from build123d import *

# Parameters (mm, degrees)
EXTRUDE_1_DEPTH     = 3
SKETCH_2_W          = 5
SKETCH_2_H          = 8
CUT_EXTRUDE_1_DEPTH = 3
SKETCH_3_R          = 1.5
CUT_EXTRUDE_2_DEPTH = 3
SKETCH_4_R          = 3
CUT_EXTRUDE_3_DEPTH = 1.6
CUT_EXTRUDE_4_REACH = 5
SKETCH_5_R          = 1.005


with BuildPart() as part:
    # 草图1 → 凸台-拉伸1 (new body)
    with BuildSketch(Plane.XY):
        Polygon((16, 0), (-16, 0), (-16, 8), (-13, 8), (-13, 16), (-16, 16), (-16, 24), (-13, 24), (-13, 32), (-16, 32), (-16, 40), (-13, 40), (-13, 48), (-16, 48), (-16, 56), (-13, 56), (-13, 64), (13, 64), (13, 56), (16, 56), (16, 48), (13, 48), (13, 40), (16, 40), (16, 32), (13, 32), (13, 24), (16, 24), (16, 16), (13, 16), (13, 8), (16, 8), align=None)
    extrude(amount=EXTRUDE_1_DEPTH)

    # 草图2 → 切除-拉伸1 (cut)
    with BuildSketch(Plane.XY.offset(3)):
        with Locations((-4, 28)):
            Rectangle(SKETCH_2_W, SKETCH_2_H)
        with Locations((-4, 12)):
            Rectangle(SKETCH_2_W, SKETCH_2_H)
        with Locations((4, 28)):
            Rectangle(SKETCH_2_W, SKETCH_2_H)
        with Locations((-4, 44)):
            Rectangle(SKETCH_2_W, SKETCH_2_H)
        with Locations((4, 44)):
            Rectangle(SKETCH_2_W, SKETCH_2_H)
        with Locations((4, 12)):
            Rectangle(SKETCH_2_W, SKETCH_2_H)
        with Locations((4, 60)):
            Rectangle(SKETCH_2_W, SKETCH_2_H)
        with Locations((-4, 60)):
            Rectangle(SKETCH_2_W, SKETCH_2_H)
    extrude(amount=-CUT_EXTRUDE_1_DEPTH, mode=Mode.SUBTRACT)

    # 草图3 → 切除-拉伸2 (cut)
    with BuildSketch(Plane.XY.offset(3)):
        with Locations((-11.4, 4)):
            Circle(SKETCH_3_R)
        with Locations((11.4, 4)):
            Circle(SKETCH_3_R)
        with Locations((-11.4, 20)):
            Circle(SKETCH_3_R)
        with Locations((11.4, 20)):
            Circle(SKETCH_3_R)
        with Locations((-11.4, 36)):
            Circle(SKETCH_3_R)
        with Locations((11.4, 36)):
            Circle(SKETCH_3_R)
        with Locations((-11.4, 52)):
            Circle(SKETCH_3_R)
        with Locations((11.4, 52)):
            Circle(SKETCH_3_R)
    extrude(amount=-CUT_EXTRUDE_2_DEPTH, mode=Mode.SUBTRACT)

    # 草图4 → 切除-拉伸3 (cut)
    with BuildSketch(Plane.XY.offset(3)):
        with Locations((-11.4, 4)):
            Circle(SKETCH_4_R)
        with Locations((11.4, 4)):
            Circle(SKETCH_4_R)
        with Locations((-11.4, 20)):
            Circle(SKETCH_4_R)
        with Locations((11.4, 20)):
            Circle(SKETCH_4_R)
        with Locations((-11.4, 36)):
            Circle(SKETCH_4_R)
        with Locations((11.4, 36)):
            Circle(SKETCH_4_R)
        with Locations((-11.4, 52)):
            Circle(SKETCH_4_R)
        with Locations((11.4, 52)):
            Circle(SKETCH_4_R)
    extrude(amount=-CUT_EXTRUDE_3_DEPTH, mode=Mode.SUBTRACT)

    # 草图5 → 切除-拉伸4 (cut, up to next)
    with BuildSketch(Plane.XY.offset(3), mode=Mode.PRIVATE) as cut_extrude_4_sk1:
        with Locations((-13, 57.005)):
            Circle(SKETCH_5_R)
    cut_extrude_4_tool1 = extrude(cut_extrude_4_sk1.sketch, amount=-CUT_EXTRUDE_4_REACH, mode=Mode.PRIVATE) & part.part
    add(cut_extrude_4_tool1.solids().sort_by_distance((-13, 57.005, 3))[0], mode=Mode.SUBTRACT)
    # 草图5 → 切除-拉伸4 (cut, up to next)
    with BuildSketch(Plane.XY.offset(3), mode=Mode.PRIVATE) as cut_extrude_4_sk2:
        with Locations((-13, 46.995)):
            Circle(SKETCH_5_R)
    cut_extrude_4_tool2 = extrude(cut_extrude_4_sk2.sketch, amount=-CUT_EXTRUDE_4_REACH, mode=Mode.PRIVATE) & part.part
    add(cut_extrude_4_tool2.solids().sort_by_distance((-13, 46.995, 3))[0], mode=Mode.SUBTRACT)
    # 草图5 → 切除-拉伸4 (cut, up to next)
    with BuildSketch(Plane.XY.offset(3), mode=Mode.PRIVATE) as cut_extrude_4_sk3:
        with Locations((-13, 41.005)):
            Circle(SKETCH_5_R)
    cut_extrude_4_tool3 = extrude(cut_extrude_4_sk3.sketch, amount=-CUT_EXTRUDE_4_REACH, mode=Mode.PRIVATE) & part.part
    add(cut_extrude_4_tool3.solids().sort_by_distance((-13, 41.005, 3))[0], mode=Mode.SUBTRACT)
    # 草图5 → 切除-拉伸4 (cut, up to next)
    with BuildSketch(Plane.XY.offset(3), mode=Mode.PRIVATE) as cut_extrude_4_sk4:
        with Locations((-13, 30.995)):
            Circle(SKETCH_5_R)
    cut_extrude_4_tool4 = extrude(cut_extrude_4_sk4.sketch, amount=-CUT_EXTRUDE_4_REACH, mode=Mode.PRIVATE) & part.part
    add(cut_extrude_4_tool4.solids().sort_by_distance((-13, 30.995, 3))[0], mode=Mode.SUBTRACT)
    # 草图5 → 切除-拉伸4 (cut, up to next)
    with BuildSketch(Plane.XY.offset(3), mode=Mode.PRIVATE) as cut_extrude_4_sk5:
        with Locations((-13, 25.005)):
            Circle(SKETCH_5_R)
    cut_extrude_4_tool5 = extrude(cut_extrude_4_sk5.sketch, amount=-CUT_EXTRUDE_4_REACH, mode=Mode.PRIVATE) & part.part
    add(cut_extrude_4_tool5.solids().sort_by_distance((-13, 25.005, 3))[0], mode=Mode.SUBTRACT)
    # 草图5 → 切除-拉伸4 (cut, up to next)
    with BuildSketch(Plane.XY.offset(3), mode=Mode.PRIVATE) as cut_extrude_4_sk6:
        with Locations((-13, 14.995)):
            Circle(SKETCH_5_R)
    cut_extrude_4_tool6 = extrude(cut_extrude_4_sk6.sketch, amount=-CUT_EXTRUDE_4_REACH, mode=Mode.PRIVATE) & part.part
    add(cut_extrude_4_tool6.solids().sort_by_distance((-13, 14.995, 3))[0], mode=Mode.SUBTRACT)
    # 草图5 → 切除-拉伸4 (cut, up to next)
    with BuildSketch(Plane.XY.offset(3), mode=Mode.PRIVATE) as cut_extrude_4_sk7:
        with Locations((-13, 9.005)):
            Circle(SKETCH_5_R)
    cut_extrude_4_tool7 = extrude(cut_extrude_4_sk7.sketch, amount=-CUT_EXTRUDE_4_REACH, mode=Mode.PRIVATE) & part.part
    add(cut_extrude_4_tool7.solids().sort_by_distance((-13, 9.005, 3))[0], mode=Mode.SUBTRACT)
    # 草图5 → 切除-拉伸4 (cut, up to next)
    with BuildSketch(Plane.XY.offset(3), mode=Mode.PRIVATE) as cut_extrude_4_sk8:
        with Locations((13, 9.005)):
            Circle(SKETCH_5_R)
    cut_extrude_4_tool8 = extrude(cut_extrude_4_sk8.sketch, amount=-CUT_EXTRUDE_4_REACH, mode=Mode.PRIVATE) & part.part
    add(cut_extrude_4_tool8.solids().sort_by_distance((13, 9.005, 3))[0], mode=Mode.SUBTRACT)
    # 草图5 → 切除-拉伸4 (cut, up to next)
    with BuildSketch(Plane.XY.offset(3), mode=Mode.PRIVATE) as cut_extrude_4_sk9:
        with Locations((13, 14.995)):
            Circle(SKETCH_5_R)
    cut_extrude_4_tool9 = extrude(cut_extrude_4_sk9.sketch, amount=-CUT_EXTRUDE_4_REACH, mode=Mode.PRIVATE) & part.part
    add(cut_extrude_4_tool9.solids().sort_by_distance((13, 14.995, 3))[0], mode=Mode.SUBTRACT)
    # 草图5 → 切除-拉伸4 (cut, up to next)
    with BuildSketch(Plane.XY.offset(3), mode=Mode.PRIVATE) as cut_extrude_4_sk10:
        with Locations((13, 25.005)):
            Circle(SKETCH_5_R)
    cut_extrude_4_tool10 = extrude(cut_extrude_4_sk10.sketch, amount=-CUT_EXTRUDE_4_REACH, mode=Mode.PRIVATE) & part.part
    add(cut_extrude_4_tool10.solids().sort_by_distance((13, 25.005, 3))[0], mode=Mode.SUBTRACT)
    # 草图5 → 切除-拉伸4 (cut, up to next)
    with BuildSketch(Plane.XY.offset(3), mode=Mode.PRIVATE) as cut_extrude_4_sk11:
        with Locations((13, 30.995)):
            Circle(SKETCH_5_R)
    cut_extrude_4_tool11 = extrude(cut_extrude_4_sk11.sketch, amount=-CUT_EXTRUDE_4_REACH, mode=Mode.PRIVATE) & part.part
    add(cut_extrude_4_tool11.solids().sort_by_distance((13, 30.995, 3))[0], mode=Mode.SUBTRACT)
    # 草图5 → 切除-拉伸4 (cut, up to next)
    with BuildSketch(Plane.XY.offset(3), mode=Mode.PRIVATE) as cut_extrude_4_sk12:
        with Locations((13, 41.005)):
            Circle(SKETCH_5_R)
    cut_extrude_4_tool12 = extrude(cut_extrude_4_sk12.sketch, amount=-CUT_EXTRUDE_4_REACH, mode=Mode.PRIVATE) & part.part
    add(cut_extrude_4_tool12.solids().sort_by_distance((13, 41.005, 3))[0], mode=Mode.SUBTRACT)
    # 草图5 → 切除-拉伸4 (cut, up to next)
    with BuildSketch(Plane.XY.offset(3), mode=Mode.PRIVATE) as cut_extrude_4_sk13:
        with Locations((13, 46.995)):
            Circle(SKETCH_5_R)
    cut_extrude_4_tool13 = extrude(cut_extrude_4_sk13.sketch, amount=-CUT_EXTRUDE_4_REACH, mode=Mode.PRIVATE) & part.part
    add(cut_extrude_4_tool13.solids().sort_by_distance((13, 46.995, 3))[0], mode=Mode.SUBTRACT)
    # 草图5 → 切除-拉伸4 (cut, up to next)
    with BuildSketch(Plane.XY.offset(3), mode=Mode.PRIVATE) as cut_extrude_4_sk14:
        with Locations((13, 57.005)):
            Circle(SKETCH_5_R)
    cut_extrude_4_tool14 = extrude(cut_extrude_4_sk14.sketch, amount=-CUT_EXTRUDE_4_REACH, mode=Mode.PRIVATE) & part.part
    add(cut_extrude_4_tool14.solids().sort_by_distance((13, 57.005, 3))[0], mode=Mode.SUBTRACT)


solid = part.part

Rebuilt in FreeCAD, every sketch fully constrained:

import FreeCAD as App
import Part
import Sketcher

V = App.Vector

doc = App.newDocument("Part")
body = doc.addObject("PartDesign::Body", "Body")

# Sketch on XY plane
sketch1 = body.newObject("Sketcher::SketchObject", "Sketch")
sketch1.AttachmentSupport = (doc.getObject("XY_Plane"), [""])
sketch1.MapMode = "FlatFace"
sketch1.addGeometry([
    Part.LineSegment(V(-16, 0, 0), V(16, 0, 0)),  # 0
    Part.LineSegment(V(16, 0, 0), V(16, 8, 0)),  # 1
    Part.LineSegment(V(16, 8, 0), V(13, 8, 0)),  # 2
    Part.LineSegment(V(13, 8, 0), V(13, 16, 0)),  # 3
    Part.LineSegment(V(13, 16, 0), V(16, 16, 0)),  # 4
    Part.LineSegment(V(16, 16, 0), V(16, 24, 0)),  # 5
    Part.LineSegment(V(16, 24, 0), V(13, 24, 0)),  # 6
    Part.LineSegment(V(13, 24, 0), V(13, 32, 0)),  # 7
    Part.LineSegment(V(13, 32, 0), V(16, 32, 0)),  # 8
    Part.LineSegment(V(16, 32, 0), V(16, 40, 0)),  # 9
    Part.LineSegment(V(16, 40, 0), V(13, 40, 0)),  # 10
    Part.LineSegment(V(13, 40, 0), V(13, 48, 0)),  # 11
    Part.LineSegment(V(13, 48, 0), V(16, 48, 0)),  # 12
    Part.LineSegment(V(16, 48, 0), V(16, 56, 0)),  # 13
    Part.LineSegment(V(16, 56, 0), V(13, 56, 0)),  # 14
    Part.LineSegment(V(13, 56, 0), V(13, 64, 0)),  # 15
    Part.LineSegment(V(13, 64, 0), V(-13, 64, 0)),  # 16
    Part.LineSegment(V(-13, 64, 0), V(-13, 56, 0)),  # 17
    Part.LineSegment(V(-13, 56, 0), V(-16, 56, 0)),  # 18
    Part.LineSegment(V(-16, 56, 0), V(-16, 48, 0)),  # 19
    Part.LineSegment(V(-16, 48, 0), V(-13, 48, 0)),  # 20
    Part.LineSegment(V(-13, 48, 0), V(-13, 40, 0)),  # 21
    Part.LineSegment(V(-13, 40, 0), V(-16, 40, 0)),  # 22
    Part.LineSegment(V(-16, 40, 0), V(-16, 32, 0)),  # 23
    Part.LineSegment(V(-16, 32, 0), V(-13, 32, 0)),  # 24
    Part.LineSegment(V(-13, 32, 0), V(-13, 24, 0)),  # 25
    Part.LineSegment(V(-13, 24, 0), V(-16, 24, 0)),  # 26
    Part.LineSegment(V(-16, 24, 0), V(-16, 16, 0)),  # 27
    Part.LineSegment(V(-16, 16, 0), V(-13, 16, 0)),  # 28
    Part.LineSegment(V(-13, 16, 0), V(-13, 8, 0)),  # 29
    Part.LineSegment(V(-13, 8, 0), V(-16, 8, 0)),  # 30
    Part.LineSegment(V(-16, 8, 0), V(-16, 0, 0)),  # 31
], False)
sketch1.addConstraint([
    Sketcher.Constraint("Coincident", 0, 2, 1, 1),
    Sketcher.Constraint("Coincident", 1, 2, 2, 1),
    Sketcher.Constraint("Coincident", 2, 2, 3, 1),
    Sketcher.Constraint("Coincident", 3, 2, 4, 1),
    Sketcher.Constraint("Coincident", 4, 2, 5, 1),
    Sketcher.Constraint("Coincident", 5, 2, 6, 1),
    Sketcher.Constraint("Coincident", 6, 2, 7, 1),
    Sketcher.Constraint("Coincident", 7, 2, 8, 1),
    Sketcher.Constraint("Coincident", 8, 2, 9, 1),
    Sketcher.Constraint("Coincident", 9, 2, 10, 1),
    Sketcher.Constraint("Coincident", 10, 2, 11, 1),
    Sketcher.Constraint("Coincident", 11, 2, 12, 1),
    Sketcher.Constraint("Coincident", 12, 2, 13, 1),
    Sketcher.Constraint("Coincident", 13, 2, 14, 1),
    Sketcher.Constraint("Coincident", 14, 2, 15, 1),
    Sketcher.Constraint("Coincident", 15, 2, 16, 1),
    Sketcher.Constraint("Coincident", 16, 2, 17, 1),
    Sketcher.Constraint("Coincident", 17, 2, 18, 1),
    Sketcher.Constraint("Coincident", 18, 2, 19, 1),
    Sketcher.Constraint("Coincident", 19, 2, 20, 1),
    Sketcher.Constraint("Coincident", 20, 2, 21, 1),
    Sketcher.Constraint("Coincident", 21, 2, 22, 1),
    Sketcher.Constraint("Coincident", 22, 2, 23, 1),
    Sketcher.Constraint("Coincident", 23, 2, 24, 1),
    Sketcher.Constraint("Coincident", 24, 2, 25, 1),
    Sketcher.Constraint("Coincident", 25, 2, 26, 1),
    Sketcher.Constraint("Coincident", 26, 2, 27, 1),
    Sketcher.Constraint("Coincident", 27, 2, 28, 1),
    Sketcher.Constraint("Coincident", 28, 2, 29, 1),
    Sketcher.Constraint("Coincident", 29, 2, 30, 1),
    Sketcher.Constraint("Coincident", 30, 2, 31, 1),
    Sketcher.Constraint("Coincident", 31, 2, 0, 1),
    Sketcher.Constraint("Horizontal", 0),
    Sketcher.Constraint("Vertical", 1),
    Sketcher.Constraint("Horizontal", 2),
    Sketcher.Constraint("Vertical", 3),
    Sketcher.Constraint("Horizontal", 4),
    Sketcher.Constraint("Vertical", 5),
    Sketcher.Constraint("Horizontal", 6),
    Sketcher.Constraint("Vertical", 7),
    Sketcher.Constraint("Horizontal", 8),
    Sketcher.Constraint("Vertical", 9),
    Sketcher.Constraint("Horizontal", 10),
    Sketcher.Constraint("Vertical", 11),
    Sketcher.Constraint("Horizontal", 12),
    Sketcher.Constraint("Vertical", 13),
    Sketcher.Constraint("Horizontal", 14),
    Sketcher.Constraint("Vertical", 15),
    Sketcher.Constraint("Horizontal", 16),
    Sketcher.Constraint("Vertical", 17),
    Sketcher.Constraint("Horizontal", 18),
    Sketcher.Constraint("Vertical", 19),
    Sketcher.Constraint("Horizontal", 20),
    Sketcher.Constraint("Vertical", 21),
    Sketcher.Constraint("Horizontal", 22),
    Sketcher.Constraint("Vertical", 23),
    Sketcher.Constraint("Horizontal", 24),
    Sketcher.Constraint("Vertical", 25),
    Sketcher.Constraint("Horizontal", 26),
    Sketcher.Constraint("Vertical", 27),
    Sketcher.Constraint("Horizontal", 28),
    Sketcher.Constraint("Vertical", 29),
    Sketcher.Constraint("Horizontal", 30),
    Sketcher.Constraint("Vertical", 31),
    Sketcher.Constraint("Symmetric", 0, 2, 31, 2, -1, 1),
    Sketcher.Constraint("Symmetric", 14, 2, 17, 2, -2),
    Sketcher.Constraint("Symmetric", 12, 2, 19, 2, -2),
    Sketcher.Constraint("Symmetric", 10, 2, 21, 2, -2),
    Sketcher.Constraint("Symmetric", 8, 2, 23, 2, -2),
    Sketcher.Constraint("Symmetric", 6, 2, 25, 2, -2),
    Sketcher.Constraint("Symmetric", 4, 2, 27, 2, -2),
    Sketcher.Constraint("Symmetric", 2, 2, 29, 2, -2),
    Sketcher.Constraint("Vertical", 1, 2, 4, 2),
    Sketcher.Constraint("Vertical", 3, 2, 6, 2),
    Sketcher.Constraint("Vertical", 5, 2, 8, 2),
    Sketcher.Constraint("Vertical", 7, 2, 10, 2),
    Sketcher.Constraint("Vertical", 9, 2, 12, 2),
    Sketcher.Constraint("Vertical", 11, 2, 14, 2),
    Sketcher.Constraint("Equal", 1, 3),
    Sketcher.Constraint("Equal", 3, 5),
    Sketcher.Constraint("Equal", 5, 7),
    Sketcher.Constraint("Equal", 7, 9),
    Sketcher.Constraint("Equal", 9, 11),
    Sketcher.Constraint("Equal", 11, 13),
    Sketcher.Constraint("Equal", 13, 15),
    Sketcher.Constraint("DistanceX", 0, 1, 0, 2, 32.0),
    Sketcher.Constraint("DistanceX", 2, 2, 2, 1, 3.0),
    Sketcher.Constraint("DistanceY", 1, 1, 1, 2, 8.0),
])
pad1 = body.newObject("PartDesign::Pad", "Pad")
pad1.Profile = sketch1
pad1.Length = 3

# Sketch on XY plane
sketch2 = body.newObject("Sketcher::SketchObject", "Sketch001")
sketch2.AttachmentSupport = (doc.getObject("XY_Plane"), [""])
sketch2.MapMode = "FlatFace"
sketch2.AttachmentOffset = App.Placement(V(0, 0, 3), App.Rotation())
sketch2.addGeometry([
    Part.LineSegment(V(-6, 32, 0), V(-6, 24, 0)),  # 0
    Part.LineSegment(V(-6, 24, 0), V(-2, 24, 0)),  # 1
    Part.LineSegment(V(-2, 24, 0), V(-2, 32, 0)),  # 2
    Part.LineSegment(V(-2, 32, 0), V(-6, 32, 0)),  # 3
    Part.LineSegment(V(-6, 16, 0), V(-6, 8, 0)),  # 4
    Part.LineSegment(V(-6, 8, 0), V(-2, 8, 0)),  # 5
    Part.LineSegment(V(-2, 8, 0), V(-2, 16, 0)),  # 6
    Part.LineSegment(V(-2, 16, 0), V(-6, 16, 0)),  # 7
    Part.LineSegment(V(2, 32, 0), V(2, 24, 0)),  # 8
    Part.LineSegment(V(2, 24, 0), V(6, 24, 0)),  # 9
    Part.LineSegment(V(6, 24, 0), V(6, 32, 0)),  # 10
    Part.LineSegment(V(6, 32, 0), V(2, 32, 0)),  # 11
    Part.LineSegment(V(-6, 48, 0), V(-6, 40, 0)),  # 12
    Part.LineSegment(V(-6, 40, 0), V(-2, 40, 0)),  # 13
    Part.LineSegment(V(-2, 40, 0), V(-2, 48, 0)),  # 14
    Part.LineSegment(V(-2, 48, 0), V(-6, 48, 0)),  # 15
    Part.LineSegment(V(2, 48, 0), V(2, 40, 0)),  # 16
    Part.LineSegment(V(2, 40, 0), V(6, 40, 0)),  # 17
    Part.LineSegment(V(6, 40, 0), V(6, 48, 0)),  # 18
    Part.LineSegment(V(6, 48, 0), V(2, 48, 0)),  # 19
    Part.LineSegment(V(2, 16, 0), V(2, 8, 0)),  # 20
    Part.LineSegment(V(2, 8, 0), V(6, 8, 0)),  # 21
    Part.LineSegment(V(6, 8, 0), V(6, 16, 0)),  # 22
    Part.LineSegment(V(6, 16, 0), V(2, 16, 0)),  # 23
    Part.LineSegment(V(2, 64, 0), V(2, 56, 0)),  # 24
    Part.LineSegment(V(2, 56, 0), V(6, 56, 0)),  # 25
    Part.LineSegment(V(6, 56, 0), V(6, 64, 0)),  # 26
    Part.LineSegment(V(6, 64, 0), V(2, 64, 0)),  # 27
    Part.LineSegment(V(-6, 64, 0), V(-6, 56, 0)),  # 28
    Part.LineSegment(V(-6, 56, 0), V(-2, 56, 0)),  # 29
    Part.LineSegment(V(-2, 56, 0), V(-2, 64, 0)),  # 30
    Part.LineSegment(V(-2, 64, 0), V(-6, 64, 0)),  # 31
], False)
sketch2.addConstraint([
    Sketcher.Constraint("Coincident", 0, 2, 1, 1),
    Sketcher.Constraint("Coincident", 1, 2, 2, 1),
    Sketcher.Constraint("Coincident", 2, 2, 3, 1),
    Sketcher.Constraint("Coincident", 3, 2, 0, 1),
    Sketcher.Constraint("Coincident", 4, 2, 5, 1),
    Sketcher.Constraint("Coincident", 5, 2, 6, 1),
    Sketcher.Constraint("Coincident", 6, 2, 7, 1),
    Sketcher.Constraint("Coincident", 7, 2, 4, 1),
    Sketcher.Constraint("Coincident", 8, 2, 9, 1),
    Sketcher.Constraint("Coincident", 9, 2, 10, 1),
    Sketcher.Constraint("Coincident", 10, 2, 11, 1),
    Sketcher.Constraint("Coincident", 11, 2, 8, 1),
    Sketcher.Constraint("Coincident", 12, 2, 13, 1),
    Sketcher.Constraint("Coincident", 13, 2, 14, 1),
    Sketcher.Constraint("Coincident", 14, 2, 15, 1),
    Sketcher.Constraint("Coincident", 15, 2, 12, 1),
    Sketcher.Constraint("Coincident", 16, 2, 17, 1),
    Sketcher.Constraint("Coincident", 17, 2, 18, 1),
    Sketcher.Constraint("Coincident", 18, 2, 19, 1),
    Sketcher.Constraint("Coincident", 19, 2, 16, 1),
    Sketcher.Constraint("Coincident", 20, 2, 21, 1),
    Sketcher.Constraint("Coincident", 21, 2, 22, 1),
    Sketcher.Constraint("Coincident", 22, 2, 23, 1),
    Sketcher.Constraint("Coincident", 23, 2, 20, 1),
    Sketcher.Constraint("Coincident", 24, 2, 25, 1),
    Sketcher.Constraint("Coincident", 25, 2, 26, 1),
    Sketcher.Constraint("Coincident", 26, 2, 27, 1),
    Sketcher.Constraint("Coincident", 27, 2, 24, 1),
    Sketcher.Constraint("Coincident", 28, 2, 29, 1),
    Sketcher.Constraint("Coincident", 29, 2, 30, 1),
    Sketcher.Constraint("Coincident", 30, 2, 31, 1),
    Sketcher.Constraint("Coincident", 31, 2, 28, 1),
    Sketcher.Constraint("Vertical", 0),
    Sketcher.Constraint("Horizontal", 1),
    Sketcher.Constraint("Vertical", 2),
    Sketcher.Constraint("Horizontal", 3),
    Sketcher.Constraint("Vertical", 4),
    Sketcher.Constraint("Horizontal", 5),
    Sketcher.Constraint("Vertical", 6),
    Sketcher.Constraint("Horizontal", 7),
    Sketcher.Constraint("Vertical", 8),
    Sketcher.Constraint("Horizontal", 9),
    Sketcher.Constraint("Vertical", 10),
    Sketcher.Constraint("Horizontal", 11),
    Sketcher.Constraint("Vertical", 12),
    Sketcher.Constraint("Horizontal", 13),
    Sketcher.Constraint("Vertical", 14),
    Sketcher.Constraint("Horizontal", 15),
    Sketcher.Constraint("Vertical", 16),
    Sketcher.Constraint("Horizontal", 17),
    Sketcher.Constraint("Vertical", 18),
    Sketcher.Constraint("Horizontal", 19),
    Sketcher.Constraint("Vertical", 20),
    Sketcher.Constraint("Horizontal", 21),
    Sketcher.Constraint("Vertical", 22),
    Sketcher.Constraint("Horizontal", 23),
    Sketcher.Constraint("Vertical", 24),
    Sketcher.Constraint("Horizontal", 25),
    Sketcher.Constraint("Vertical", 26),
    Sketcher.Constraint("Horizontal", 27),
    Sketcher.Constraint("Vertical", 28),
    Sketcher.Constraint("Horizontal", 29),
    Sketcher.Constraint("Vertical", 30),
    Sketcher.Constraint("Horizontal", 31),
    Sketcher.Constraint("Symmetric", 1, 2, 8, 2, -2),
    Sketcher.Constraint("Symmetric", 3, 2, 10, 2, -2),
    Sketcher.Constraint("Symmetric", 13, 2, 16, 2, -2),
    Sketcher.Constraint("Symmetric", 15, 2, 18, 2, -2),
    Sketcher.Constraint("Symmetric", 5, 2, 20, 2, -2),
    Sketcher.Constraint("Symmetric", 7, 2, 22, 2, -2),
    Sketcher.Constraint("Symmetric", 25, 2, 28, 2, -2),
    Sketcher.Constraint("Symmetric", 27, 2, 30, 2, -2),
    Sketcher.Constraint("Vertical", 3, 2, 4, 2),
    Sketcher.Constraint("Vertical", 2, 2, 5, 2),
    Sketcher.Constraint("Vertical", 7, 2, 12, 2),
    Sketcher.Constraint("Vertical", 6, 2, 13, 2),
    Sketcher.Constraint("Vertical", 23, 2, 24, 2),
    Sketcher.Constraint("Vertical", 22, 2, 25, 2),
    Sketcher.Constraint("Equal", 2, 4),
    Sketcher.Constraint("Equal", 10, 12),
    Sketcher.Constraint("Equal", 22, 24),
    Sketcher.Constraint("DistanceX", 1, 1, 1, 2, 5.0),
    Sketcher.Constraint("DistanceY", 0, 2, 0, 1, 8.0),
    Sketcher.Constraint("DistanceY", -1, 1, 0, 2, 24.0),
    Sketcher.Constraint("DistanceY", -1, 1, 4, 2, 8.0),
    Sketcher.Constraint("DistanceY", -1, 1, 12, 2, 40.0),
    Sketcher.Constraint("DistanceY", -1, 1, 24, 2, 56.0),
    Sketcher.Constraint("DistanceX", 1, 2, 8, 2, 3.0),
])
pocket1 = body.newObject("PartDesign::Pocket", "Pocket")
pocket1.Profile = sketch2
pocket1.Length = 3

# Sketch on XY plane
sketch3 = body.newObject("Sketcher::SketchObject", "Sketch002")
sketch3.AttachmentSupport = (doc.getObject("XY_Plane"), [""])
sketch3.MapMode = "FlatFace"
sketch3.AttachmentOffset = App.Placement(V(0, 0, 3), App.Rotation())
sketch3.addGeometry([
    Part.Circle(V(-11.4, 4, 0), V(0, 0, 1), 1.5),  # 0
    Part.Circle(V(11.4, 4, 0), V(0, 0, 1), 1.5),  # 1
    Part.Circle(V(-11.4, 20, 0), V(0, 0, 1), 1.5),  # 2
    Part.Circle(V(11.4, 20, 0), V(0, 0, 1), 1.5),  # 3
    Part.Circle(V(-11.4, 36, 0), V(0, 0, 1), 1.5),  # 4
    Part.Circle(V(11.4, 36, 0), V(0, 0, 1), 1.5),  # 5
    Part.Circle(V(-11.4, 52, 0), V(0, 0, 1), 1.5),  # 6
    Part.Circle(V(11.4, 52, 0), V(0, 0, 1), 1.5),  # 7
], False)
sketch3.addConstraint([
    Sketcher.Constraint("Equal", 0, 1),
    Sketcher.Constraint("Equal", 1, 2),
    Sketcher.Constraint("Equal", 2, 3),
    Sketcher.Constraint("Equal", 3, 4),
    Sketcher.Constraint("Equal", 4, 5),
    Sketcher.Constraint("Equal", 5, 6),
    Sketcher.Constraint("Equal", 6, 7),
    Sketcher.Constraint("Symmetric", 0, 3, 1, 3, -2),
    Sketcher.Constraint("Symmetric", 2, 3, 3, 3, -2),
    Sketcher.Constraint("Symmetric", 4, 3, 5, 3, -2),
    Sketcher.Constraint("Symmetric", 6, 3, 7, 3, -2),
    Sketcher.Constraint("Vertical", 0, 3, 2, 3),
    Sketcher.Constraint("Vertical", 2, 3, 4, 3),
    Sketcher.Constraint("Vertical", 4, 3, 6, 3),
    Sketcher.Constraint("Diameter", 0, 3.0),
    Sketcher.Constraint("DistanceY", -1, 1, 0, 3, 4.0),
    Sketcher.Constraint("DistanceY", -1, 1, 2, 3, 20.0),
    Sketcher.Constraint("DistanceY", -1, 1, 4, 3, 36.0),
    Sketcher.Constraint("DistanceY", -1, 1, 6, 3, 52.0),
    Sketcher.Constraint("DistanceX", 0, 3, -1, 1, 11.4),
])
pocket2 = body.newObject("PartDesign::Pocket", "Pocket001")
pocket2.Profile = sketch3
pocket2.Length = 3

# Sketch on XY plane
sketch4 = body.newObject("Sketcher::SketchObject", "Sketch003")
sketch4.AttachmentSupport = (doc.getObject("XY_Plane"), [""])
sketch4.MapMode = "FlatFace"
sketch4.AttachmentOffset = App.Placement(V(0, 0, 3), App.Rotation())
sketch4.addGeometry([
    Part.Circle(V(-11.4, 4, 0), V(0, 0, 1), 3),  # 0
    Part.Circle(V(11.4, 4, 0), V(0, 0, 1), 3),  # 1
    Part.Circle(V(-11.4, 20, 0), V(0, 0, 1), 3),  # 2
    Part.Circle(V(11.4, 20, 0), V(0, 0, 1), 3),  # 3
    Part.Circle(V(-11.4, 36, 0), V(0, 0, 1), 3),  # 4
    Part.Circle(V(11.4, 36, 0), V(0, 0, 1), 3),  # 5
    Part.Circle(V(-11.4, 52, 0), V(0, 0, 1), 3),  # 6
    Part.Circle(V(11.4, 52, 0), V(0, 0, 1), 3),  # 7
], False)
sketch4.addConstraint([
    Sketcher.Constraint("Equal", 0, 1),
    Sketcher.Constraint("Equal", 1, 2),
    Sketcher.Constraint("Equal", 2, 3),
    Sketcher.Constraint("Equal", 3, 4),
    Sketcher.Constraint("Equal", 4, 5),
    Sketcher.Constraint("Equal", 5, 6),
    Sketcher.Constraint("Equal", 6, 7),
    Sketcher.Constraint("Symmetric", 0, 3, 1, 3, -2),
    Sketcher.Constraint("Symmetric", 2, 3, 3, 3, -2),
    Sketcher.Constraint("Symmetric", 4, 3, 5, 3, -2),
    Sketcher.Constraint("Symmetric", 6, 3, 7, 3, -2),
    Sketcher.Constraint("Vertical", 0, 3, 2, 3),
    Sketcher.Constraint("Vertical", 2, 3, 4, 3),
    Sketcher.Constraint("Vertical", 4, 3, 6, 3),
    Sketcher.Constraint("Diameter", 0, 6.0),
    Sketcher.Constraint("DistanceY", -1, 1, 0, 3, 4.0),
    Sketcher.Constraint("DistanceY", -1, 1, 2, 3, 20.0),
    Sketcher.Constraint("DistanceY", -1, 1, 4, 3, 36.0),
    Sketcher.Constraint("DistanceY", -1, 1, 6, 3, 52.0),
    Sketcher.Constraint("DistanceX", 0, 3, -1, 1, 11.4),
])
pocket3 = body.newObject("PartDesign::Pocket", "Pocket002")
pocket3.Profile = sketch4
pocket3.Length = 1.6

# Sketch on XY plane
sketch5 = body.newObject("Sketcher::SketchObject", "Sketch004")
sketch5.AttachmentSupport = (doc.getObject("XY_Plane"), [""])
sketch5.MapMode = "FlatFace"
sketch5.AttachmentOffset = App.Placement(V(0, 0, 3), App.Rotation())
sketch5.addGeometry(Part.Circle(V(-13, 57, 0), V(0, 0, 1), 1), False)
sketch5.addConstraint([
    Sketcher.Constraint("Diameter", 0, 2.01),
    Sketcher.Constraint("DistanceX", 0, 3, -1, 1, 13.0),
    Sketcher.Constraint("DistanceY", -1, 1, 0, 3, 57.005),
])
pocket4 = body.newObject("PartDesign::Pocket", "Pocket003")
pocket4.Profile = sketch5
pocket4.Type = "UpToFirst"

# Sketch on XY plane
sketch6 = body.newObject("Sketcher::SketchObject", "Sketch005")
sketch6.AttachmentSupport = (doc.getObject("XY_Plane"), [""])
sketch6.MapMode = "FlatFace"
sketch6.AttachmentOffset = App.Placement(V(0, 0, 3), App.Rotation())
sketch6.addGeometry(Part.Circle(V(-13, 47, 0), V(0, 0, 1), 1), False)
sketch6.addConstraint([
    Sketcher.Constraint("Diameter", 0, 2.01),
    Sketcher.Constraint("DistanceX", 0, 3, -1, 1, 13.0),
    Sketcher.Constraint("DistanceY", -1, 1, 0, 3, 46.995),
])
pocket5 = body.newObject("PartDesign::Pocket", "Pocket004")
pocket5.Profile = sketch6
pocket5.Type = "UpToFirst"

# Sketch on XY plane
sketch7 = body.newObject("Sketcher::SketchObject", "Sketch006")
sketch7.AttachmentSupport = (doc.getObject("XY_Plane"), [""])
sketch7.MapMode = "FlatFace"
sketch7.AttachmentOffset = App.Placement(V(0, 0, 3), App.Rotation())
sketch7.addGeometry(Part.Circle(V(-13, 41, 0), V(0, 0, 1), 1), False)
sketch7.addConstraint([
    Sketcher.Constraint("Diameter", 0, 2.01),
    Sketcher.Constraint("DistanceX", 0, 3, -1, 1, 13.0),
    Sketcher.Constraint("DistanceY", -1, 1, 0, 3, 41.005),
])
pocket6 = body.newObject("PartDesign::Pocket", "Pocket005")
pocket6.Profile = sketch7
pocket6.Type = "UpToFirst"

# Sketch on XY plane
sketch8 = body.newObject("Sketcher::SketchObject", "Sketch007")
sketch8.AttachmentSupport = (doc.getObject("XY_Plane"), [""])
sketch8.MapMode = "FlatFace"
sketch8.AttachmentOffset = App.Placement(V(0, 0, 3), App.Rotation())
sketch8.addGeometry(Part.Circle(V(-13, 31, 0), V(0, 0, 1), 1), False)
sketch8.addConstraint([
    Sketcher.Constraint("Diameter", 0, 2.01),
    Sketcher.Constraint("DistanceX", 0, 3, -1, 1, 13.0),
    Sketcher.Constraint("DistanceY", -1, 1, 0, 3, 30.995),
])
pocket7 = body.newObject("PartDesign::Pocket", "Pocket006")
pocket7.Profile = sketch8
pocket7.Type = "UpToFirst"

# Sketch on XY plane
sketch9 = body.newObject("Sketcher::SketchObject", "Sketch008")
sketch9.AttachmentSupport = (doc.getObject("XY_Plane"), [""])
sketch9.MapMode = "FlatFace"
sketch9.AttachmentOffset = App.Placement(V(0, 0, 3), App.Rotation())
sketch9.addGeometry(Part.Circle(V(-13, 25, 0), V(0, 0, 1), 1), False)
sketch9.addConstraint([
    Sketcher.Constraint("Diameter", 0, 2.01),
    Sketcher.Constraint("DistanceX", 0, 3, -1, 1, 13.0),
    Sketcher.Constraint("DistanceY", -1, 1, 0, 3, 25.005),
])
pocket8 = body.newObject("PartDesign::Pocket", "Pocket007")
pocket8.Profile = sketch9
pocket8.Type = "UpToFirst"

# Sketch on XY plane
sketch10 = body.newObject("Sketcher::SketchObject", "Sketch009")
sketch10.AttachmentSupport = (doc.getObject("XY_Plane"), [""])
sketch10.MapMode = "FlatFace"
sketch10.AttachmentOffset = App.Placement(V(0, 0, 3), App.Rotation())
sketch10.addGeometry(Part.Circle(V(-13, 15, 0), V(0, 0, 1), 1), False)
sketch10.addConstraint([
    Sketcher.Constraint("Diameter", 0, 2.01),
    Sketcher.Constraint("DistanceX", 0, 3, -1, 1, 13.0),
    Sketcher.Constraint("DistanceY", -1, 1, 0, 3, 14.995),
])
pocket9 = body.newObject("PartDesign::Pocket", "Pocket008")
pocket9.Profile = sketch10
pocket9.Type = "UpToFirst"

# Sketch on XY plane
sketch11 = body.newObject("Sketcher::SketchObject", "Sketch010")
sketch11.AttachmentSupport = (doc.getObject("XY_Plane"), [""])
sketch11.MapMode = "FlatFace"
sketch11.AttachmentOffset = App.Placement(V(0, 0, 3), App.Rotation())
sketch11.addGeometry(Part.Circle(V(-13, 9, 0), V(0, 0, 1), 1), False)
sketch11.addConstraint([
    Sketcher.Constraint("Diameter", 0, 2.01),
    Sketcher.Constraint("DistanceX", 0, 3, -1, 1, 13.0),
    Sketcher.Constraint("DistanceY", -1, 1, 0, 3, 9.005),
])
pocket10 = body.newObject("PartDesign::Pocket", "Pocket009")
pocket10.Profile = sketch11
pocket10.Type = "UpToFirst"

# Sketch on XY plane
sketch12 = body.newObject("Sketcher::SketchObject", "Sketch011")
sketch12.AttachmentSupport = (doc.getObject("XY_Plane"), [""])
sketch12.MapMode = "FlatFace"
sketch12.AttachmentOffset = App.Placement(V(0, 0, 3), App.Rotation())
sketch12.addGeometry(Part.Circle(V(13, 9, 0), V(0, 0, 1), 1), False)
sketch12.addConstraint([
    Sketcher.Constraint("Diameter", 0, 2.01),
    Sketcher.Constraint("DistanceX", -1, 1, 0, 3, 13.0),
    Sketcher.Constraint("DistanceY", -1, 1, 0, 3, 9.005),
])
pocket11 = body.newObject("PartDesign::Pocket", "Pocket010")
pocket11.Profile = sketch12
pocket11.Type = "UpToFirst"

# Sketch on XY plane
sketch13 = body.newObject("Sketcher::SketchObject", "Sketch012")
sketch13.AttachmentSupport = (doc.getObject("XY_Plane"), [""])
sketch13.MapMode = "FlatFace"
sketch13.AttachmentOffset = App.Placement(V(0, 0, 3), App.Rotation())
sketch13.addGeometry(Part.Circle(V(13, 15, 0), V(0, 0, 1), 1), False)
sketch13.addConstraint([
    Sketcher.Constraint("Diameter", 0, 2.01),
    Sketcher.Constraint("DistanceX", -1, 1, 0, 3, 13.0),
    Sketcher.Constraint("DistanceY", -1, 1, 0, 3, 14.995),
])
pocket12 = body.newObject("PartDesign::Pocket", "Pocket011")
pocket12.Profile = sketch13
pocket12.Type = "UpToFirst"

# Sketch on XY plane
sketch14 = body.newObject("Sketcher::SketchObject", "Sketch013")
sketch14.AttachmentSupport = (doc.getObject("XY_Plane"), [""])
sketch14.MapMode = "FlatFace"
sketch14.AttachmentOffset = App.Placement(V(0, 0, 3), App.Rotation())
sketch14.addGeometry(Part.Circle(V(13, 25, 0), V(0, 0, 1), 1), False)
sketch14.addConstraint([
    Sketcher.Constraint("Diameter", 0, 2.01),
    Sketcher.Constraint("DistanceX", -1, 1, 0, 3, 13.0),
    Sketcher.Constraint("DistanceY", -1, 1, 0, 3, 25.005),
])
pocket13 = body.newObject("PartDesign::Pocket", "Pocket012")
pocket13.Profile = sketch14
pocket13.Type = "UpToFirst"

# Sketch on XY plane
sketch15 = body.newObject("Sketcher::SketchObject", "Sketch014")
sketch15.AttachmentSupport = (doc.getObject("XY_Plane"), [""])
sketch15.MapMode = "FlatFace"
sketch15.AttachmentOffset = App.Placement(V(0, 0, 3), App.Rotation())
sketch15.addGeometry(Part.Circle(V(13, 31, 0), V(0, 0, 1), 1), False)
sketch15.addConstraint([
    Sketcher.Constraint("Diameter", 0, 2.01),
    Sketcher.Constraint("DistanceX", -1, 1, 0, 3, 13.0),
    Sketcher.Constraint("DistanceY", -1, 1, 0, 3, 30.995),
])
pocket14 = body.newObject("PartDesign::Pocket", "Pocket013")
pocket14.Profile = sketch15
pocket14.Type = "UpToFirst"

# Sketch on XY plane
sketch16 = body.newObject("Sketcher::SketchObject", "Sketch015")
sketch16.AttachmentSupport = (doc.getObject("XY_Plane"), [""])
sketch16.MapMode = "FlatFace"
sketch16.AttachmentOffset = App.Placement(V(0, 0, 3), App.Rotation())
sketch16.addGeometry(Part.Circle(V(13, 41, 0), V(0, 0, 1), 1), False)
sketch16.addConstraint([
    Sketcher.Constraint("Diameter", 0, 2.01),
    Sketcher.Constraint("DistanceX", -1, 1, 0, 3, 13.0),
    Sketcher.Constraint("DistanceY", -1, 1, 0, 3, 41.005),
])
pocket15 = body.newObject("PartDesign::Pocket", "Pocket014")
pocket15.Profile = sketch16
pocket15.Type = "UpToFirst"

# Sketch on XY plane
sketch17 = body.newObject("Sketcher::SketchObject", "Sketch016")
sketch17.AttachmentSupport = (doc.getObject("XY_Plane"), [""])
sketch17.MapMode = "FlatFace"
sketch17.AttachmentOffset = App.Placement(V(0, 0, 3), App.Rotation())
sketch17.addGeometry(Part.Circle(V(13, 47, 0), V(0, 0, 1), 1), False)
sketch17.addConstraint([
    Sketcher.Constraint("Diameter", 0, 2.01),
    Sketcher.Constraint("DistanceX", -1, 1, 0, 3, 13.0),
    Sketcher.Constraint("DistanceY", -1, 1, 0, 3, 46.995),
])
pocket16 = body.newObject("PartDesign::Pocket", "Pocket015")
pocket16.Profile = sketch17
pocket16.Type = "UpToFirst"

# Sketch on XY plane
sketch18 = body.newObject("Sketcher::SketchObject", "Sketch017")
sketch18.AttachmentSupport = (doc.getObject("XY_Plane"), [""])
sketch18.MapMode = "FlatFace"
sketch18.AttachmentOffset = App.Placement(V(0, 0, 3), App.Rotation())
sketch18.addGeometry(Part.Circle(V(13, 57, 0), V(0, 0, 1), 1), False)
sketch18.addConstraint([
    Sketcher.Constraint("Diameter", 0, 2.01),
    Sketcher.Constraint("DistanceX", -1, 1, 0, 3, 13.0),
    Sketcher.Constraint("DistanceY", -1, 1, 0, 3, 57.005),
])
pocket17 = body.newObject("PartDesign::Pocket", "Pocket016")
pocket17.Profile = sketch18
pocket17.Type = "UpToFirst"

doc.recompute()
